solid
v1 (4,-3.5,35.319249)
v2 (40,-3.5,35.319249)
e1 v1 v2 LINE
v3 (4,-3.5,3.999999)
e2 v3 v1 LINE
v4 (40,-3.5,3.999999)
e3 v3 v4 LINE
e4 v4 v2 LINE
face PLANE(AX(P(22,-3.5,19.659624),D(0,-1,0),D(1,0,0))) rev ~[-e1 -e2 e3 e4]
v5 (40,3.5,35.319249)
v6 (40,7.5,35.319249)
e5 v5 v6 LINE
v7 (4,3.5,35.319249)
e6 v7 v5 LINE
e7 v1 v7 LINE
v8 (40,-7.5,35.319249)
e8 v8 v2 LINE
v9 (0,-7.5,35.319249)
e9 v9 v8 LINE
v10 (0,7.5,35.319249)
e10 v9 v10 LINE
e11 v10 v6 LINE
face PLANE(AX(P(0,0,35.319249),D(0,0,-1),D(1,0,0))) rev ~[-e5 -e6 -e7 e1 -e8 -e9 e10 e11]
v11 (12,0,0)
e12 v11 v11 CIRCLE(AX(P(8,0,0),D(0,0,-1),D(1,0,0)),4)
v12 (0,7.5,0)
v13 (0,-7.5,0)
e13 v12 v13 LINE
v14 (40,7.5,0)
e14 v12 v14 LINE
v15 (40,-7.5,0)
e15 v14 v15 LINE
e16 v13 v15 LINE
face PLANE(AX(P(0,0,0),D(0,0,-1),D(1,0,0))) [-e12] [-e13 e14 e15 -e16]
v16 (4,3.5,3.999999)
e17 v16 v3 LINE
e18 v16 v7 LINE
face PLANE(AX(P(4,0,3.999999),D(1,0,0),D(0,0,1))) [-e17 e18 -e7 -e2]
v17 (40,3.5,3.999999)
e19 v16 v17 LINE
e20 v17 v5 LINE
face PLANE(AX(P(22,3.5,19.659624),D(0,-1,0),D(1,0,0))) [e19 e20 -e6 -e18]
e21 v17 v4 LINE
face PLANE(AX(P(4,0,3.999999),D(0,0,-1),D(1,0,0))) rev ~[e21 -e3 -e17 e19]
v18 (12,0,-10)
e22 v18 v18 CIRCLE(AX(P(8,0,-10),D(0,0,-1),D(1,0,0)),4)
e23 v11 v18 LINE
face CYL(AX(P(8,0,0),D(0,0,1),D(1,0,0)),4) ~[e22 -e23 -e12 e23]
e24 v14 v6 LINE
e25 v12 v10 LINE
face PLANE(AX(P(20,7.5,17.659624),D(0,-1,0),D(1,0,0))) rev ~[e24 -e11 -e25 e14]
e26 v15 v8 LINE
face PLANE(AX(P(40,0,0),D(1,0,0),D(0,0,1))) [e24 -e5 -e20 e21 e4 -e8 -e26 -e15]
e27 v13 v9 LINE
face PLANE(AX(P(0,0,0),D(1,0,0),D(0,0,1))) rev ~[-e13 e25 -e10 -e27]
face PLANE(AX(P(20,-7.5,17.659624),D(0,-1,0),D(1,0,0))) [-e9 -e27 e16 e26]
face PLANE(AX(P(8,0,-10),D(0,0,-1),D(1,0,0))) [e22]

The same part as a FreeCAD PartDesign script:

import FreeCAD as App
import Part
import Sketcher

doc = App.newDocument("Part")
body = doc.addObject("PartDesign::Body", "Body")

sketch1 = doc.addObject("Sketcher::SketchObject", "Sketch")
body.addObject(sketch1)
sketch1.AttachmentSupport = (doc.XZ_Plane, [""])
sketch1.MapMode = "FlatFace"
sketch1.addGeometry([
    Part.LineSegment(App.Vector(0, 35, 0), App.Vector(0, 0, 0)),
    Part.LineSegment(App.Vector(0, 0, 0), App.Vector(40, 0, 0)),
    Part.LineSegment(App.Vector(40, 0, 0), App.Vector(40, 35, 0)),
    Part.LineSegment(App.Vector(40, 35, 0), App.Vector(0, 35, 0)),
], False)
sketch1.addConstraint([
    Sketcher.Constraint("Coincident", 0, 2, 1, 1),
    Sketcher.Constraint("Coincident", 1, 2, 2, 1),
    Sketcher.Constraint("Coincident", 2, 2, 3, 1),
    Sketcher.Constraint("Coincident", 3, 2, 0, 1),
    Sketcher.Constraint("Vertical", 0),
    Sketcher.Constraint("Horizontal", 1),
    Sketcher.Constraint("Vertical", 2),
    Sketcher.Constraint("Horizontal", 3),
    Sketcher.Constraint("Coincident", 0, 2, -1, 1),
    Sketcher.Constraint("DistanceX", 1, 1, 1, 2, 40.0),
    Sketcher.Constraint("DistanceY", 0, 2, 0, 1, 35.319249),
])
pad1 = doc.addObject("PartDesign::Pad", "Pad")
body.addObject(pad1)
pad1.Profile = sketch1
pad1.Length = 15
pad1.Midplane = True

sketch2 = doc.addObject("Sketcher::SketchObject", "Sketch001")
body.addObject(sketch2)
sketch2.AttachmentSupport = (doc.XZ_Plane, [""])
sketch2.MapMode = "FlatFace"
sketch2.addGeometry([
    Part.LineSegment(App.Vector(4, 35, 0), App.Vector(4, 4, 0)),
    Part.LineSegment(App.Vector(4, 4, 0), App.Vector(40, 4, 0)),
    Part.LineSegment(App.Vector(40, 4, 0), App.Vector(40, 35, 0)),
    Part.LineSegment(App.Vector(40, 35, 0), App.Vector(4, 35, 0)),
], False)
sketch2.addConstraint([
    Sketcher.Constraint("Coincident", 0, 2, 1, 1),
    Sketcher.Constraint("Coincident", 1, 2, 2, 1),
    Sketcher.Constraint("Coincident", 2, 2, 3, 1),
    Sketcher.Constraint("Coincident", 3, 2, 0, 1),
    Sketcher.Constraint("Vertical", 0),
    Sketcher.Constraint("Horizontal", 1),
    Sketcher.Constraint("Vertical", 2),
    Sketcher.Constraint("Horizontal", 3),
    Sketcher.Constraint("DistanceX", 1, 1, 1, 2, 36.0),
    Sketcher.Constraint("DistanceX", -1, 1, 0, 2, 4.0),
    Sketcher.Constraint("DistanceY", -1, 1, 0, 2, 3.999999),
    Sketcher.Constraint("DistanceY", 0, 2, 0, 1, 31.319249),
])
pocket1 = doc.addObject("PartDesign::Pocket", "Pocket")
body.addObject(pocket1)
pocket1.Profile = sketch2
pocket1.Length = 7
pocket1.Midplane = True

sketch3 = doc.addObject("Sketcher::SketchObject", "Sketch002")
body.addObject(sketch3)
sketch3.AttachmentSupport = (doc.XY_Plane, [""])
sketch3.MapMode = "FlatFace"
sketch3.addGeometry(Part.Circle(App.Vector(8, 0, 0), App.Vector(0, 0, 1), 4), False)
sketch3.addConstraint([
    Sketcher.Constraint("PointOnObject", 0, 3, -1),
    Sketcher.Constraint("Diameter", 0, 8.0),
    Sketcher.Constraint("DistanceX", -1, 1, 0, 3, 8.0),
])
pad2 = doc.addObject("PartDesign::Pad", "Pad001")
body.addObject(pad2)
pad2.Profile = sketch3
pad2.Length = 10
pad2.Reversed = True

doc.recompute()
